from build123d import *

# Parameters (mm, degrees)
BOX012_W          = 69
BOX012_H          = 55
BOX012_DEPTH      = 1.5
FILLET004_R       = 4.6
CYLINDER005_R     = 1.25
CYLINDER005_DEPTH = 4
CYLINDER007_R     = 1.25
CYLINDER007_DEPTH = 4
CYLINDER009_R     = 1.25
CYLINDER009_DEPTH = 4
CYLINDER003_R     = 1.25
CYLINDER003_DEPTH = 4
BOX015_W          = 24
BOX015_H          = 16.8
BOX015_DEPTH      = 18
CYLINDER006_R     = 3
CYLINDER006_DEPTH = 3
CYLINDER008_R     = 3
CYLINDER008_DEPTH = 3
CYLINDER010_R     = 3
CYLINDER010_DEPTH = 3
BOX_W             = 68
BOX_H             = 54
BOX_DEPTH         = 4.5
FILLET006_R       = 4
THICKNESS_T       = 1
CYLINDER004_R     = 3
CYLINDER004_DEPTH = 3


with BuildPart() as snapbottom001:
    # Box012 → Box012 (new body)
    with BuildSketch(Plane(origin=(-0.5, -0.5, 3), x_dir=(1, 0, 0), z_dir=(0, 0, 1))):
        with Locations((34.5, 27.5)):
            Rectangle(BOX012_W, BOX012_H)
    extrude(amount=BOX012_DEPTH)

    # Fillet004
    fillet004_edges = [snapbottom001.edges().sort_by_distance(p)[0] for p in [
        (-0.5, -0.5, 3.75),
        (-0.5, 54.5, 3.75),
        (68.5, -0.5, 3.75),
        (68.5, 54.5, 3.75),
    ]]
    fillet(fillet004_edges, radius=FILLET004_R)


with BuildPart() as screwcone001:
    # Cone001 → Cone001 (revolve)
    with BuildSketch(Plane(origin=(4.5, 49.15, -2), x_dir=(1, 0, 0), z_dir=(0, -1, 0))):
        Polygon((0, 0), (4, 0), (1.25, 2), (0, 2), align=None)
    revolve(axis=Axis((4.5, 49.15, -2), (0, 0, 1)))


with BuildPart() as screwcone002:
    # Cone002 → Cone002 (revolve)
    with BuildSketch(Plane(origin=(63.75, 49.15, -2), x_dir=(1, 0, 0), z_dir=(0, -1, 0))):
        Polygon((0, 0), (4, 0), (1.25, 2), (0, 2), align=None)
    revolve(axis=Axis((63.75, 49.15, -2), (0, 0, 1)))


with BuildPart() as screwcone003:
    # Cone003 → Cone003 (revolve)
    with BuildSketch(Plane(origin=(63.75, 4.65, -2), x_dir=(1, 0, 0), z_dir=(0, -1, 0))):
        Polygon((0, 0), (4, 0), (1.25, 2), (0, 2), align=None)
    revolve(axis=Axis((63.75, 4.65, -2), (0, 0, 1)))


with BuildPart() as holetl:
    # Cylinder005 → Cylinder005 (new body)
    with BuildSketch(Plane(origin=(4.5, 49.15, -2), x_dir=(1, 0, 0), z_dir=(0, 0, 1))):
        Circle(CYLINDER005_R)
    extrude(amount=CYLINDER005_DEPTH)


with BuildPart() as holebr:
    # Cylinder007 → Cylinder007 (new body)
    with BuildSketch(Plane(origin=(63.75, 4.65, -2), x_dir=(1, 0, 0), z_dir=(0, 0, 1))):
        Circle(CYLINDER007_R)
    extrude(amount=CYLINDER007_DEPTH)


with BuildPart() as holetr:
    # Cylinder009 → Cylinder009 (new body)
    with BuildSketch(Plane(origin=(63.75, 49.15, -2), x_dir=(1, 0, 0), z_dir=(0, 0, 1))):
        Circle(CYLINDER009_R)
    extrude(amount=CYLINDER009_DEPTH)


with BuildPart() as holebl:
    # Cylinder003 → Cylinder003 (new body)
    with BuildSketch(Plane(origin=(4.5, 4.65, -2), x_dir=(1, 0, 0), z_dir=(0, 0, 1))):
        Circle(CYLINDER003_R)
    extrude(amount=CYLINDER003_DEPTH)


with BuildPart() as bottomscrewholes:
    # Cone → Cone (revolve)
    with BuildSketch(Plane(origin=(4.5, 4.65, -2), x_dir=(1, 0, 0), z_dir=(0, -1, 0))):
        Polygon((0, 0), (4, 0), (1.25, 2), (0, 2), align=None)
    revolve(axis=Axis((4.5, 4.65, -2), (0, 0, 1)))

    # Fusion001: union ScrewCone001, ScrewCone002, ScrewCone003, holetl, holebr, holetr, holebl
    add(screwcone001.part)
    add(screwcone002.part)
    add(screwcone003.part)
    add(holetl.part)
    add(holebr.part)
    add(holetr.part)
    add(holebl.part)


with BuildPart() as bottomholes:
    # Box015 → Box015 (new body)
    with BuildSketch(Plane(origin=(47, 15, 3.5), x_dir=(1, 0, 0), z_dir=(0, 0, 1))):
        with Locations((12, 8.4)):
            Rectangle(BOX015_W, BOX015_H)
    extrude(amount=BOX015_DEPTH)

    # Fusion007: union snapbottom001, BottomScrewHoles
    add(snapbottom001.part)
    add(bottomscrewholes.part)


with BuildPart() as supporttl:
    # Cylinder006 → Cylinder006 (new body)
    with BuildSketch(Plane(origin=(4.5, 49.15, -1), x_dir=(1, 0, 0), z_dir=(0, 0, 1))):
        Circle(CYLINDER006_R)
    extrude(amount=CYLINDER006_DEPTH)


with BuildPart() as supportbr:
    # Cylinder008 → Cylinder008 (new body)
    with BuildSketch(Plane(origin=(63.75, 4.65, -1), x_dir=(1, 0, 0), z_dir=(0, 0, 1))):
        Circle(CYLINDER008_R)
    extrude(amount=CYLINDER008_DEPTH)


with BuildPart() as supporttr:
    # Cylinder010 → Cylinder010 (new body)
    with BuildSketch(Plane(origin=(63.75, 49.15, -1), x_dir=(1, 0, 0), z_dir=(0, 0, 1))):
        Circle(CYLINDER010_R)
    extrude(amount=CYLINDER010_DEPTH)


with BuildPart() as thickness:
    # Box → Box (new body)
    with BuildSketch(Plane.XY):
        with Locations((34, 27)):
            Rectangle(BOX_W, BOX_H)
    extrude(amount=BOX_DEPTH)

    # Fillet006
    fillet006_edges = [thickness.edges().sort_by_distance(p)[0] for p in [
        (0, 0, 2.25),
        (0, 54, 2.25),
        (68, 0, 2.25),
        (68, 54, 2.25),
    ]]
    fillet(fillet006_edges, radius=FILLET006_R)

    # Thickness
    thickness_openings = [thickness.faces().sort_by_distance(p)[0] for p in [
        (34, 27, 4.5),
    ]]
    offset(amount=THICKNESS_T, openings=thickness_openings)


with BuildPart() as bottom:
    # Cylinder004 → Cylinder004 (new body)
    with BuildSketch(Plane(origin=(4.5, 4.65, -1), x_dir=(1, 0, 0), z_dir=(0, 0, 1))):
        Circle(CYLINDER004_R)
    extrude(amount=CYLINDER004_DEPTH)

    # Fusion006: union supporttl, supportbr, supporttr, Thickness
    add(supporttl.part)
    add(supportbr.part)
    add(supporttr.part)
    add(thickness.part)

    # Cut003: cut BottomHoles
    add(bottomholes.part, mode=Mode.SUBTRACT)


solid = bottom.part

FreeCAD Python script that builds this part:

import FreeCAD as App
import Part
import Sketcher

V = App.Vector
Q = App.Units.Quantity


def edges_at(feature, points):
    """Names of the edges that pass closest to the given points."""
    edges = feature.Shape.Edges
    near = lambda p: min(range(len(edges)), key=lambda i: edges[i].distToShape(Part.Vertex(*p))[0])
    return sorted({f"Edge{near(p) + 1}" for p in points})


def faces_at(feature, points):
    """Names of the faces that lie closest to the given points."""
    faces = feature.Shape.Faces
    near = lambda p: min(range(len(faces)), key=lambda i: faces[i].distToShape(Part.Vertex(*p))[0])
    return sorted({f"Face{near(p) + 1}" for p in points})


def add_polygon(sketch, points):
    """Adds a closed chain of lines whose ends are joined by coincident constraints."""
    first, n = sketch.GeometryCount, len(points)
    for a, b in zip(points, points[1:] + points[:1]):
        sketch.addGeometry(Part.LineSegment(App.Vector(*a, 0), App.Vector(*b, 0)), False)
    for i in range(n):
        sketch.addConstraint(Sketcher.Constraint("Coincident", first + i, 2, first + (i + 1) % n, 1))

doc = App.newDocument("Part")
body = doc.addObject("PartDesign::Body", "Body")

# Sketch on XY plane
sketch1 = body.newObject("Sketcher::SketchObject", "Sketch")
sketch1.AttachmentSupport = (doc.getObject("XY_Plane"), [""])
sketch1.MapMode = "FlatFace"
sketch1.AttachmentOffset = App.Placement(V(0, 0, 3), App.Rotation())
add_polygon(sketch1, [(-0.5, 54.5), (-0.5, -0.5), (68.5, -0.5), (68.5, 54.5)])  # lines 0-3
sketch1.addConstraint(Sketcher.Constraint("Vertical", 0))
sketch1.addConstraint(Sketcher.Constraint("Horizontal", 1))
sketch1.addConstraint(Sketcher.Constraint("Vertical", 2))
sketch1.addConstraint(Sketcher.Constraint("Horizontal", 3))
sketch1.addConstraint(Sketcher.Constraint("DistanceX", 1, 1, 1, 2, Q("69 mm")))
sketch1.addConstraint(Sketcher.Constraint("DistanceY", 0, 2, 0, 1, Q("55 mm")))
sketch1.addConstraint(Sketcher.Constraint("DistanceX", 0, 2, -1, 1, Q("0.5 mm")))
sketch1.addConstraint(Sketcher.Constraint("DistanceY", 0, 2, -1, 1, Q("0.5 mm")))
pad1 = body.newObject("PartDesign::Pad", "Pad")
pad1.Profile = sketch1
pad1.Length = 1.5
doc.recompute()

fillet = body.newObject("PartDesign::Fillet", "Fillet")
fillet.Base = (pad1, edges_at(pad1, [
    (-0.5, -0.5, 3.75),
    (-0.5, 54.5, 3.75),
    (68.5, -0.5, 3.75),
    (68.5, 54.5, 3.75),
]))
fillet.Radius = 4.6
body2 = doc.addObject("PartDesign::Body", "Body001")

# Sketch on XZ plane
sketch2 = body2.newObject("Sketcher::SketchObject", "Sketch001")
sketch2.AttachmentSupport = (doc.getObject("XZ_Plane001"), [""])
sketch2.MapMode = "FlatFace"
sketch2.AttachmentOffset = App.Placement(V(0, 0, -49.15), App.Rotation())
add_polygon(sketch2, [(4.5, -2), (8.5, -2), (5.75, 0), (4.5, 0)])  # lines 0-3
sketch2.addGeometry(Part.LineSegment(V(4.5, -2, 0), V(4.5, 0, 0)), True)  # axis
sketch2.addConstraint(Sketcher.Constraint("Horizontal", 0))
sketch2.addConstraint(Sketcher.Constraint("Horizontal", 2))
sketch2.addConstraint(Sketcher.Constraint("Vertical", 3))
sketch2.addConstraint(Sketcher.Constraint("Vertical", 4))
sketch2.addConstraint(Sketcher.Constraint("Coincident", 4, 1, 3, 2))
sketch2.addConstraint(Sketcher.Constraint("PointOnObject", 1, 2, -1))
sketch2.addConstraint(Sketcher.Constraint("PointOnObject", 4, 2, -1))
sketch2.addConstraint(Sketcher.Constraint("DistanceX", 0, 1, 0, 2, Q("4 mm")))
sketch2.addConstraint(Sketcher.Constraint("DistanceY", 3, 2, 3, 1, Q("2 mm")))
sketch2.addConstraint(Sketcher.Constraint("DistanceX", 2, 2, 2, 1, Q("1.25 mm")))
sketch2.addConstraint(Sketcher.Constraint("DistanceX", -1, 1, 0, 2, Q("8.5 mm")))
revolution = body2.newObject("PartDesign::Revolution", "Revolution")
revolution.Profile = sketch2
revolution.ReferenceAxis = (sketch2, ["Axis0"])
revolution.Angle = 360
body3 = doc.addObject("PartDesign::Body", "Body002")

# Sketch on XZ plane
sketch3 = body3.newObject("Sketcher::SketchObject", "Sketch002")
sketch3.AttachmentSupport = (doc.getObject("XZ_Plane002"), [""])
sketch3.MapMode = "FlatFace"
sketch3.AttachmentOffset = App.Placement(V(0, 0, -49.15), App.Rotation())
add_polygon(sketch3, [(63.75, -2), (67.75, -2), (65, 0), (63.75, 0)])  # lines 0-3
sketch3.addGeometry(Part.LineSegment(V(63.75, -2, 0), V(63.75, 0, 0)), True)  # axis
sketch3.addConstraint(Sketcher.Constraint("Horizontal", 0))
sketch3.addConstraint(Sketcher.Constraint("Horizontal", 2))
sketch3.addConstraint(Sketcher.Constraint("Vertical", 3))
sketch3.addConstraint(Sketcher.Constraint("Vertical", 4))
sketch3.addConstraint(Sketcher.Constraint("Coincident", 4, 1, 3, 2))
sketch3.addConstraint(Sketcher.Constraint("PointOnObject", 1, 2, -1))
sketch3.addConstraint(Sketcher.Constraint("PointOnObject", 4, 2, -1))
sketch3.addConstraint(Sketcher.Constraint("DistanceX", 0, 1, 0, 2, Q("4 mm")))
sketch3.addConstraint(Sketcher.Constraint("DistanceY", 3, 2, 3, 1, Q("2 mm")))
sketch3.addConstraint(Sketcher.Constraint("DistanceX", -1, 1, 1, 2, Q("65 mm")))
sketch3.addConstraint(Sketcher.Constraint("DistanceX", 2, 2, 2, 1, Q("1.25 mm")))
revolution2 = body3.newObject("PartDesign::Revolution", "Revolution001")
revolution2.Profile = sketch3
revolution2.ReferenceAxis = (sketch3, ["Axis0"])
revolution2.Angle = 360
body4 = doc.addObject("PartDesign::Body", "Body003")

# Sketch on XZ plane
sketch4 = body4.newObject("Sketcher::SketchObject", "Sketch003")
sketch4.AttachmentSupport = (doc.getObject("XZ_Plane003"), [""])
sketch4.MapMode = "FlatFace"
sketch4.AttachmentOffset = App.Placement(V(0, 0, -4.65), App.Rotation())
add_polygon(sketch4, [(63.75, -2), (67.75, -2), (65, 0), (63.75, 0)])  # lines 0-3
sketch4.addGeometry(Part.LineSegment(V(63.75, -2, 0), V(63.75, 0, 0)), True)  # axis
sketch4.addConstraint(Sketcher.Constraint("Horizontal", 0))
sketch4.addConstraint(Sketcher.Constraint("Horizontal", 2))
sketch4.addConstraint(Sketcher.Constraint("Vertical", 3))
sketch4.addConstraint(Sketcher.Constraint("Vertical", 4))
sketch4.addConstraint(Sketcher.Constraint("Coincident", 4, 1, 3, 2))
sketch4.addConstraint(Sketcher.Constraint("PointOnObject", 1, 2, -1))
sketch4.addConstraint(Sketcher.Constraint("PointOnObject", 4, 2, -1))
sketch4.addConstraint(Sketcher.Constraint("DistanceX", 0, 1, 0, 2, Q("4 mm")))
sketch4.addConstraint(Sketcher.Constraint("DistanceY", 3, 2, 3, 1, Q("2 mm")))
sketch4.addConstraint(Sketcher.Constraint("DistanceX", -1, 1, 1, 2, Q("65 mm")))
sketch4.addConstraint(Sketcher.Constraint("DistanceX", 2, 2, 2, 1, Q("1.25 mm")))
revolution3 = body4.newObject("PartDesign::Revolution", "Revolution002")
revolution3.Profile = sketch4
revolution3.ReferenceAxis = (sketch4, ["Axis0"])
revolution3.Angle = 360
body5 = doc.addObject("PartDesign::Body", "Body004")

# Sketch on XY plane
sketch5 = body5.newObject("Sketcher::SketchObject", "Sketch004")
sketch5.AttachmentSupport = (doc.getObject("XY_Plane004"), [""])
sketch5.MapMode = "FlatFace"
sketch5.AttachmentOffset = App.Placement(V(0, 0, -2), App.Rotation())
sketch5.addGeometry(Part.Circle(V(4.5, 49.15, 0), V(0, 0, 1), 1.25), False)
sketch5.addConstraint(Sketcher.Constraint("Diameter", 0, Q("2.5 mm")))
sketch5.addConstraint(Sketcher.Constraint("DistanceX", -1, 1, 0, 3, Q("4.5 mm")))
sketch5.addConstraint(Sketcher.Constraint("DistanceY", -1, 1, 0, 3, Q("49.15 mm")))
pad2 = body5.newObject("PartDesign::Pad", "Pad001")
pad2.Profile = sketch5
pad2.Length = 4
body6 = doc.addObject("PartDesign::Body", "Body005")

# Sketch on XY plane
sketch6 = body6.newObject("Sketcher::SketchObject", "Sketch005")
sketch6.AttachmentSupport = (doc.getObject("XY_Plane005"), [""])
sketch6.MapMode = "FlatFace"
sketch6.AttachmentOffset = App.Placement(V(0, 0, -2), App.Rotation())
sketch6.addGeometry(Part.Circle(V(63.75, 4.65, 0), V(0, 0, 1), 1.25), False)
sketch6.addConstraint(Sketcher.Constraint("Diameter", 0, Q("2.5 mm")))
sketch6.addConstraint(Sketcher.Constraint("DistanceX", -1, 1, 0, 3, Q("63.75 mm")))
sketch6.addConstraint(Sketcher.Constraint("DistanceY", -1, 1, 0, 3, Q("4.65 mm")))
pad3 = body6.newObject("PartDesign::Pad", "Pad002")
pad3.Profile = sketch6
pad3.Length = 4
body7 = doc.addObject("PartDesign::Body", "Body006")

# Sketch on XY plane
sketch7 = body7.newObject("Sketcher::SketchObject", "Sketch006")
sketch7.AttachmentSupport = (doc.getObject("XY_Plane006"), [""])
sketch7.MapMode = "FlatFace"
sketch7.AttachmentOffset = App.Placement(V(0, 0, -2), App.Rotation())
sketch7.addGeometry(Part.Circle(V(63.75, 49.15, 0), V(0, 0, 1), 1.25), False)
sketch7.addConstraint(Sketcher.Constraint("Diameter", 0, Q("2.5 mm")))
sketch7.addConstraint(Sketcher.Constraint("DistanceX", -1, 1, 0, 3, Q("63.75 mm")))
sketch7.addConstraint(Sketcher.Constraint("DistanceY", -1, 1, 0, 3, Q("49.15 mm")))
pad4 = body7.newObject("PartDesign::Pad", "Pad003")
pad4.Profile = sketch7
pad4.Length = 4
body8 = doc.addObject("PartDesign::Body", "Body007")

# Sketch on XY plane
sketch8 = body8.newObject("Sketcher::SketchObject", "Sketch007")
sketch8.AttachmentSupport = (doc.getObject("XY_Plane007"), [""])
sketch8.MapMode = "FlatFace"
sketch8.AttachmentOffset = App.Placement(V(0, 0, -2), App.Rotation())
sketch8.addGeometry(Part.Circle(V(4.5, 4.65, 0), V(0, 0, 1), 1.25), False)
sketch8.addConstraint(Sketcher.Constraint("Diameter", 0, Q("2.5 mm")))
sketch8.addConstraint(Sketcher.Constraint("DistanceX", -1, 1, 0, 3, Q("4.5 mm")))
sketch8.addConstraint(Sketcher.Constraint("DistanceY", -1, 1, 0, 3, Q("4.65 mm")))
pad5 = body8.newObject("PartDesign::Pad", "Pad004")
pad5.Profile = sketch8
pad5.Length = 4
body9 = doc.addObject("PartDesign::Body", "Body008")
body9.AllowCompound = True

# Sketch on XZ plane
sketch9 = body9.newObject("Sketcher::SketchObject", "Sketch008")
sketch9.AttachmentSupport = (doc.getObject("XZ_Plane008"), [""])
sketch9.MapMode = "FlatFace"
sketch9.AttachmentOffset = App.Placement(V(0, 0, -4.65), App.Rotation())
add_polygon(sketch9, [(4.5, -2), (8.5, -2), (5.75, 0), (4.5, 0)])  # lines 0-3
sketch9.addGeometry(Part.LineSegment(V(4.5, -2, 0), V(4.5, 0, 0)), True)  # axis
sketch9.addConstraint(Sketcher.Constraint("Horizontal", 0))
sketch9.addConstraint(Sketcher.Constraint("Horizontal", 2))
sketch9.addConstraint(Sketcher.Constraint("Vertical", 3))
sketch9.addConstraint(Sketcher.Constraint("Vertical", 4))
sketch9.addConstraint(Sketcher.Constraint("Coincident", 4, 1, 3, 2))
sketch9.addConstraint(Sketcher.Constraint("PointOnObject", 1, 2, -1))
sketch9.addConstraint(Sketcher.Constraint("PointOnObject", 4, 2, -1))
sketch9.addConstraint(Sketcher.Constraint("DistanceX", 0, 1, 0, 2, Q("4 mm")))
sketch9.addConstraint(Sketcher.Constraint("DistanceY", 3, 2, 3, 1, Q("2 mm")))
sketch9.addConstraint(Sketcher.Constraint("DistanceX", 2, 2, 2, 1, Q("1.25 mm")))
sketch9.addConstraint(Sketcher.Constraint("DistanceX", -1, 1, 0, 2, Q("8.5 mm")))
revolution4 = body9.newObject("PartDesign::Revolution", "Revolution003")
revolution4.Profile = sketch9
revolution4.ReferenceAxis = (sketch9, ["Axis0"])
revolution4.Angle = 360
doc.recompute()

boolean = body9.newObject("PartDesign::Boolean", "Boolean")
boolean.Type = "Fuse"
boolean.addObjects([body2])
doc.recompute()

boolean2 = body9.newObject("PartDesign::Boolean", "Boolean001")
boolean2.Type = "Fuse"
boolean2.addObjects([body3])
doc.recompute()

boolean3 = body9.newObject("PartDesign::Boolean", "Boolean002")
boolean3.Type = "Fuse"
boolean3.addObjects([body4])
doc.recompute()

boolean4 = body9.newObject("PartDesign::Boolean", "Boolean003")
boolean4.Type = "Fuse"
boolean4.addObjects([body5])
doc.recompute()

boolean5 = body9.newObject("PartDesign::Boolean", "Boolean004")
boolean5.Type = "Fuse"
boolean5.addObjects([body6])
doc.recompute()

boolean6 = body9.newObject("PartDesign::Boolean", "Boolean005")
boolean6.Type = "Fuse"
boolean6.addObjects([body7])
doc.recompute()

boolean7 = body9.newObject("PartDesign::Boolean", "Boolean006")
boolean7.Type = "Fuse"
boolean7.addObjects([body8])
body10 = doc.addObject("PartDesign::Body", "Body009")
body10.AllowCompound = True

# Sketch on XY plane
sketch10 = body10.newObject("Sketcher::SketchObject", "Sketch009")
sketch10.AttachmentSupport = (doc.getObject("XY_Plane009"), [""])
sketch10.MapMode = "FlatFace"
sketch10.AttachmentOffset = App.Placement(V(0, 0, 3.5), App.Rotation())
add_polygon(sketch10, [(47, 31.8), (47, 15), (71, 15), (71, 31.8)])  # lines 0-3
sketch10.addConstraint(Sketcher.Constraint("Vertical", 0))
sketch10.addConstraint(Sketcher.Constraint("Horizontal", 1))
sketch10.addConstraint(Sketcher.Constraint("Vertical", 2))
sketch10.addConstraint(Sketcher.Constraint("Horizontal", 3))
sketch10.addConstraint(Sketcher.Constraint("DistanceX", 1, 1, 1, 2, Q("24 mm")))
sketch10.addConstraint(Sketcher.Constraint("DistanceY", 0, 2, 0, 1, Q("16.8 mm")))
sketch10.addConstraint(Sketcher.Constraint("DistanceX", -1, 1, 0, 2, Q("47 mm")))
sketch10.addConstraint(Sketcher.Constraint("DistanceY", -1, 1, 0, 2, Q("15 mm")))
pad6 = body10.newObject("PartDesign::Pad", "Pad005")
pad6.Profile = sketch10
pad6.Length = 18
doc.recompute()

boolean8 = body10.newObject("PartDesign::Boolean", "Boolean007")
boolean8.Type = "Fuse"
boolean8.addObjects([body])
doc.recompute()

boolean9 = body10.newObject("PartDesign::Boolean", "Boolean008")
boolean9.Type = "Fuse"
boolean9.addObjects([body9])
body11 = doc.addObject("PartDesign::Body", "Body010")

# Sketch on XY plane
sketch11 = body11.newObject("Sketcher::SketchObject", "Sketch010")
sketch11.AttachmentSupport = (doc.getObject("XY_Plane010"), [""])
sketch11.MapMode = "FlatFace"
sketch11.AttachmentOffset = App.Placement(V(0, 0, -1), App.Rotation())
sketch11.addGeometry(Part.Circle(V(4.5, 49.15, 0), V(0, 0, 1), 3), False)
sketch11.addConstraint(Sketcher.Constraint("Diameter", 0, Q("6 mm")))
sketch11.addConstraint(Sketcher.Constraint("DistanceX", -1, 1, 0, 3, Q("4.5 mm")))
sketch11.addConstraint(Sketcher.Constraint("DistanceY", -1, 1, 0, 3, Q("49.15 mm")))
pad7 = body11.newObject("PartDesign::Pad", "Pad006")
pad7.Profile = sketch11
pad7.Length = 3
body12 = doc.addObject("PartDesign::Body", "Body011")

# Sketch on XY plane
sketch12 = body12.newObject("Sketcher::SketchObject", "Sketch011")
sketch12.AttachmentSupport = (doc.getObject("XY_Plane011"), [""])
sketch12.MapMode = "FlatFace"
sketch12.AttachmentOffset = App.Placement(V(0, 0, -1), App.Rotation())
sketch12.addGeometry(Part.Circle(V(63.75, 4.65, 0), V(0, 0, 1), 3), False)
sketch12.addConstraint(Sketcher.Constraint("Diameter", 0, Q("6 mm")))
sketch12.addConstraint(Sketcher.Constraint("DistanceX", -1, 1, 0, 3, Q("63.75 mm")))
sketch12.addConstraint(Sketcher.Constraint("DistanceY", -1, 1, 0, 3, Q("4.65 mm")))
pad8 = body12.newObject("PartDesign::Pad", "Pad007")
pad8.Profile = sketch12
pad8.Length = 3
body13 = doc.addObject("PartDesign::Body", "Body012")

# Sketch on XY plane
sketch13 = body13.newObject("Sketcher::SketchObject", "Sketch012")
sketch13.AttachmentSupport = (doc.getObject("XY_Plane012"), [""])
sketch13.MapMode = "FlatFace"
sketch13.AttachmentOffset = App.Placement(V(0, 0, -1), App.Rotation())
sketch13.addGeometry(Part.Circle(V(63.75, 49.15, 0), V(0, 0, 1), 3), False)
sketch13.addConstraint(Sketcher.Constraint("Diameter", 0, Q("6 mm")))
sketch13.addConstraint(Sketcher.Constraint("DistanceX", -1, 1, 0, 3, Q("63.75 mm")))
sketch13.addConstraint(Sketcher.Constraint("DistanceY", -1, 1, 0, 3, Q("49.15 mm")))
pad9 = body13.newObject("PartDesign::Pad", "Pad008")
pad9.Profile = sketch13
pad9.Length = 3
body14 = doc.addObject("PartDesign::Body", "Body013")

# Sketch on XY plane
sketch14 = body14.newObject("Sketcher::SketchObject", "Sketch013")
sketch14.AttachmentSupport = (doc.getObject("XY_Plane013"), [""])
sketch14.MapMode = "FlatFace"
add_polygon(sketch14, [(0, 54), (0, 0), (68, 0), (68, 54)])  # lines 0-3
sketch14.addConstraint(Sketcher.Constraint("Vertical", 0))
sketch14.addConstraint(Sketcher.Constraint("Horizontal", 1))
sketch14.addConstraint(Sketcher.Constraint("Vertical", 2))
sketch14.addConstraint(Sketcher.Constraint("Horizontal", 3))
sketch14.addConstraint(Sketcher.Constraint("Coincident", 0, 2, -1, 1))
sketch14.addConstraint(Sketcher.Constraint("DistanceX", 1, 1, 1, 2, Q("68 mm")))
sketch14.addConstraint(Sketcher.Constraint("DistanceY", 0, 2, 0, 1, Q("54 mm")))
pad10 = body14.newObject("PartDesign::Pad", "Pad009")
pad10.Profile = sketch14
pad10.Length = 4.5
doc.recompute()

fillet2 = body14.newObject("PartDesign::Fillet", "Fillet001")
fillet2.Base = (pad10, edges_at(pad10, [
    (0, 0, 2.25),
    (0, 54, 2.25),
    (68, 0, 2.25),
    (68, 54, 2.25),
]))
fillet2.Radius = 4
doc.recompute()

thickness = body14.newObject("PartDesign::Thickness", "Thickness")
thickness.Base = (fillet2, faces_at(fillet2, [(34, 27, 4.5)]))
thickness.Value = 1
thickness.Reversed = False
thickness.Join = "Arc"
body15 = doc.addObject("PartDesign::Body", "Body014")
body15.AllowCompound = True

# Sketch on XY plane
sketch15 = body15.newObject("Sketcher::SketchObject", "Sketch014")
sketch15.AttachmentSupport = (doc.getObject("XY_Plane014"), [""])
sketch15.MapMode = "FlatFace"
sketch15.AttachmentOffset = App.Placement(V(0, 0, -1), App.Rotation())
sketch15.addGeometry(Part.Circle(V(4.5, 4.65, 0), V(0, 0, 1), 3), False)
sketch15.addConstraint(Sketcher.Constraint("Diameter", 0, Q("6 mm")))
sketch15.addConstraint(Sketcher.Constraint("DistanceX", -1, 1, 0, 3, Q("4.5 mm")))
sketch15.addConstraint(Sketcher.Constraint("DistanceY", -1, 1, 0, 3, Q("4.65 mm")))
pad11 = body15.newObject("PartDesign::Pad", "Pad010")
pad11.Profile = sketch15
pad11.Length = 3
doc.recompute()

boolean10 = body15.newObject("PartDesign::Boolean", "Boolean009")
boolean10.Type = "Fuse"
boolean10.addObjects([body11])
doc.recompute()

boolean11 = body15.newObject("PartDesign::Boolean", "Boolean010")
boolean11.Type = "Fuse"
boolean11.addObjects([body12])
doc.recompute()

boolean12 = body15.newObject("PartDesign::Boolean", "Boolean011")
boolean12.Type = "Fuse"
boolean12.addObjects([body13])
doc.recompute()

boolean13 = body15.newObject("PartDesign::Boolean", "Boolean012")
boolean13.Type = "Fuse"
boolean13.addObjects([body14])
doc.recompute()

boolean14 = body15.newObject("PartDesign::Boolean", "Boolean013")
boolean14.Type = "Cut"
boolean14.addObjects([body10])

doc.recompute()
